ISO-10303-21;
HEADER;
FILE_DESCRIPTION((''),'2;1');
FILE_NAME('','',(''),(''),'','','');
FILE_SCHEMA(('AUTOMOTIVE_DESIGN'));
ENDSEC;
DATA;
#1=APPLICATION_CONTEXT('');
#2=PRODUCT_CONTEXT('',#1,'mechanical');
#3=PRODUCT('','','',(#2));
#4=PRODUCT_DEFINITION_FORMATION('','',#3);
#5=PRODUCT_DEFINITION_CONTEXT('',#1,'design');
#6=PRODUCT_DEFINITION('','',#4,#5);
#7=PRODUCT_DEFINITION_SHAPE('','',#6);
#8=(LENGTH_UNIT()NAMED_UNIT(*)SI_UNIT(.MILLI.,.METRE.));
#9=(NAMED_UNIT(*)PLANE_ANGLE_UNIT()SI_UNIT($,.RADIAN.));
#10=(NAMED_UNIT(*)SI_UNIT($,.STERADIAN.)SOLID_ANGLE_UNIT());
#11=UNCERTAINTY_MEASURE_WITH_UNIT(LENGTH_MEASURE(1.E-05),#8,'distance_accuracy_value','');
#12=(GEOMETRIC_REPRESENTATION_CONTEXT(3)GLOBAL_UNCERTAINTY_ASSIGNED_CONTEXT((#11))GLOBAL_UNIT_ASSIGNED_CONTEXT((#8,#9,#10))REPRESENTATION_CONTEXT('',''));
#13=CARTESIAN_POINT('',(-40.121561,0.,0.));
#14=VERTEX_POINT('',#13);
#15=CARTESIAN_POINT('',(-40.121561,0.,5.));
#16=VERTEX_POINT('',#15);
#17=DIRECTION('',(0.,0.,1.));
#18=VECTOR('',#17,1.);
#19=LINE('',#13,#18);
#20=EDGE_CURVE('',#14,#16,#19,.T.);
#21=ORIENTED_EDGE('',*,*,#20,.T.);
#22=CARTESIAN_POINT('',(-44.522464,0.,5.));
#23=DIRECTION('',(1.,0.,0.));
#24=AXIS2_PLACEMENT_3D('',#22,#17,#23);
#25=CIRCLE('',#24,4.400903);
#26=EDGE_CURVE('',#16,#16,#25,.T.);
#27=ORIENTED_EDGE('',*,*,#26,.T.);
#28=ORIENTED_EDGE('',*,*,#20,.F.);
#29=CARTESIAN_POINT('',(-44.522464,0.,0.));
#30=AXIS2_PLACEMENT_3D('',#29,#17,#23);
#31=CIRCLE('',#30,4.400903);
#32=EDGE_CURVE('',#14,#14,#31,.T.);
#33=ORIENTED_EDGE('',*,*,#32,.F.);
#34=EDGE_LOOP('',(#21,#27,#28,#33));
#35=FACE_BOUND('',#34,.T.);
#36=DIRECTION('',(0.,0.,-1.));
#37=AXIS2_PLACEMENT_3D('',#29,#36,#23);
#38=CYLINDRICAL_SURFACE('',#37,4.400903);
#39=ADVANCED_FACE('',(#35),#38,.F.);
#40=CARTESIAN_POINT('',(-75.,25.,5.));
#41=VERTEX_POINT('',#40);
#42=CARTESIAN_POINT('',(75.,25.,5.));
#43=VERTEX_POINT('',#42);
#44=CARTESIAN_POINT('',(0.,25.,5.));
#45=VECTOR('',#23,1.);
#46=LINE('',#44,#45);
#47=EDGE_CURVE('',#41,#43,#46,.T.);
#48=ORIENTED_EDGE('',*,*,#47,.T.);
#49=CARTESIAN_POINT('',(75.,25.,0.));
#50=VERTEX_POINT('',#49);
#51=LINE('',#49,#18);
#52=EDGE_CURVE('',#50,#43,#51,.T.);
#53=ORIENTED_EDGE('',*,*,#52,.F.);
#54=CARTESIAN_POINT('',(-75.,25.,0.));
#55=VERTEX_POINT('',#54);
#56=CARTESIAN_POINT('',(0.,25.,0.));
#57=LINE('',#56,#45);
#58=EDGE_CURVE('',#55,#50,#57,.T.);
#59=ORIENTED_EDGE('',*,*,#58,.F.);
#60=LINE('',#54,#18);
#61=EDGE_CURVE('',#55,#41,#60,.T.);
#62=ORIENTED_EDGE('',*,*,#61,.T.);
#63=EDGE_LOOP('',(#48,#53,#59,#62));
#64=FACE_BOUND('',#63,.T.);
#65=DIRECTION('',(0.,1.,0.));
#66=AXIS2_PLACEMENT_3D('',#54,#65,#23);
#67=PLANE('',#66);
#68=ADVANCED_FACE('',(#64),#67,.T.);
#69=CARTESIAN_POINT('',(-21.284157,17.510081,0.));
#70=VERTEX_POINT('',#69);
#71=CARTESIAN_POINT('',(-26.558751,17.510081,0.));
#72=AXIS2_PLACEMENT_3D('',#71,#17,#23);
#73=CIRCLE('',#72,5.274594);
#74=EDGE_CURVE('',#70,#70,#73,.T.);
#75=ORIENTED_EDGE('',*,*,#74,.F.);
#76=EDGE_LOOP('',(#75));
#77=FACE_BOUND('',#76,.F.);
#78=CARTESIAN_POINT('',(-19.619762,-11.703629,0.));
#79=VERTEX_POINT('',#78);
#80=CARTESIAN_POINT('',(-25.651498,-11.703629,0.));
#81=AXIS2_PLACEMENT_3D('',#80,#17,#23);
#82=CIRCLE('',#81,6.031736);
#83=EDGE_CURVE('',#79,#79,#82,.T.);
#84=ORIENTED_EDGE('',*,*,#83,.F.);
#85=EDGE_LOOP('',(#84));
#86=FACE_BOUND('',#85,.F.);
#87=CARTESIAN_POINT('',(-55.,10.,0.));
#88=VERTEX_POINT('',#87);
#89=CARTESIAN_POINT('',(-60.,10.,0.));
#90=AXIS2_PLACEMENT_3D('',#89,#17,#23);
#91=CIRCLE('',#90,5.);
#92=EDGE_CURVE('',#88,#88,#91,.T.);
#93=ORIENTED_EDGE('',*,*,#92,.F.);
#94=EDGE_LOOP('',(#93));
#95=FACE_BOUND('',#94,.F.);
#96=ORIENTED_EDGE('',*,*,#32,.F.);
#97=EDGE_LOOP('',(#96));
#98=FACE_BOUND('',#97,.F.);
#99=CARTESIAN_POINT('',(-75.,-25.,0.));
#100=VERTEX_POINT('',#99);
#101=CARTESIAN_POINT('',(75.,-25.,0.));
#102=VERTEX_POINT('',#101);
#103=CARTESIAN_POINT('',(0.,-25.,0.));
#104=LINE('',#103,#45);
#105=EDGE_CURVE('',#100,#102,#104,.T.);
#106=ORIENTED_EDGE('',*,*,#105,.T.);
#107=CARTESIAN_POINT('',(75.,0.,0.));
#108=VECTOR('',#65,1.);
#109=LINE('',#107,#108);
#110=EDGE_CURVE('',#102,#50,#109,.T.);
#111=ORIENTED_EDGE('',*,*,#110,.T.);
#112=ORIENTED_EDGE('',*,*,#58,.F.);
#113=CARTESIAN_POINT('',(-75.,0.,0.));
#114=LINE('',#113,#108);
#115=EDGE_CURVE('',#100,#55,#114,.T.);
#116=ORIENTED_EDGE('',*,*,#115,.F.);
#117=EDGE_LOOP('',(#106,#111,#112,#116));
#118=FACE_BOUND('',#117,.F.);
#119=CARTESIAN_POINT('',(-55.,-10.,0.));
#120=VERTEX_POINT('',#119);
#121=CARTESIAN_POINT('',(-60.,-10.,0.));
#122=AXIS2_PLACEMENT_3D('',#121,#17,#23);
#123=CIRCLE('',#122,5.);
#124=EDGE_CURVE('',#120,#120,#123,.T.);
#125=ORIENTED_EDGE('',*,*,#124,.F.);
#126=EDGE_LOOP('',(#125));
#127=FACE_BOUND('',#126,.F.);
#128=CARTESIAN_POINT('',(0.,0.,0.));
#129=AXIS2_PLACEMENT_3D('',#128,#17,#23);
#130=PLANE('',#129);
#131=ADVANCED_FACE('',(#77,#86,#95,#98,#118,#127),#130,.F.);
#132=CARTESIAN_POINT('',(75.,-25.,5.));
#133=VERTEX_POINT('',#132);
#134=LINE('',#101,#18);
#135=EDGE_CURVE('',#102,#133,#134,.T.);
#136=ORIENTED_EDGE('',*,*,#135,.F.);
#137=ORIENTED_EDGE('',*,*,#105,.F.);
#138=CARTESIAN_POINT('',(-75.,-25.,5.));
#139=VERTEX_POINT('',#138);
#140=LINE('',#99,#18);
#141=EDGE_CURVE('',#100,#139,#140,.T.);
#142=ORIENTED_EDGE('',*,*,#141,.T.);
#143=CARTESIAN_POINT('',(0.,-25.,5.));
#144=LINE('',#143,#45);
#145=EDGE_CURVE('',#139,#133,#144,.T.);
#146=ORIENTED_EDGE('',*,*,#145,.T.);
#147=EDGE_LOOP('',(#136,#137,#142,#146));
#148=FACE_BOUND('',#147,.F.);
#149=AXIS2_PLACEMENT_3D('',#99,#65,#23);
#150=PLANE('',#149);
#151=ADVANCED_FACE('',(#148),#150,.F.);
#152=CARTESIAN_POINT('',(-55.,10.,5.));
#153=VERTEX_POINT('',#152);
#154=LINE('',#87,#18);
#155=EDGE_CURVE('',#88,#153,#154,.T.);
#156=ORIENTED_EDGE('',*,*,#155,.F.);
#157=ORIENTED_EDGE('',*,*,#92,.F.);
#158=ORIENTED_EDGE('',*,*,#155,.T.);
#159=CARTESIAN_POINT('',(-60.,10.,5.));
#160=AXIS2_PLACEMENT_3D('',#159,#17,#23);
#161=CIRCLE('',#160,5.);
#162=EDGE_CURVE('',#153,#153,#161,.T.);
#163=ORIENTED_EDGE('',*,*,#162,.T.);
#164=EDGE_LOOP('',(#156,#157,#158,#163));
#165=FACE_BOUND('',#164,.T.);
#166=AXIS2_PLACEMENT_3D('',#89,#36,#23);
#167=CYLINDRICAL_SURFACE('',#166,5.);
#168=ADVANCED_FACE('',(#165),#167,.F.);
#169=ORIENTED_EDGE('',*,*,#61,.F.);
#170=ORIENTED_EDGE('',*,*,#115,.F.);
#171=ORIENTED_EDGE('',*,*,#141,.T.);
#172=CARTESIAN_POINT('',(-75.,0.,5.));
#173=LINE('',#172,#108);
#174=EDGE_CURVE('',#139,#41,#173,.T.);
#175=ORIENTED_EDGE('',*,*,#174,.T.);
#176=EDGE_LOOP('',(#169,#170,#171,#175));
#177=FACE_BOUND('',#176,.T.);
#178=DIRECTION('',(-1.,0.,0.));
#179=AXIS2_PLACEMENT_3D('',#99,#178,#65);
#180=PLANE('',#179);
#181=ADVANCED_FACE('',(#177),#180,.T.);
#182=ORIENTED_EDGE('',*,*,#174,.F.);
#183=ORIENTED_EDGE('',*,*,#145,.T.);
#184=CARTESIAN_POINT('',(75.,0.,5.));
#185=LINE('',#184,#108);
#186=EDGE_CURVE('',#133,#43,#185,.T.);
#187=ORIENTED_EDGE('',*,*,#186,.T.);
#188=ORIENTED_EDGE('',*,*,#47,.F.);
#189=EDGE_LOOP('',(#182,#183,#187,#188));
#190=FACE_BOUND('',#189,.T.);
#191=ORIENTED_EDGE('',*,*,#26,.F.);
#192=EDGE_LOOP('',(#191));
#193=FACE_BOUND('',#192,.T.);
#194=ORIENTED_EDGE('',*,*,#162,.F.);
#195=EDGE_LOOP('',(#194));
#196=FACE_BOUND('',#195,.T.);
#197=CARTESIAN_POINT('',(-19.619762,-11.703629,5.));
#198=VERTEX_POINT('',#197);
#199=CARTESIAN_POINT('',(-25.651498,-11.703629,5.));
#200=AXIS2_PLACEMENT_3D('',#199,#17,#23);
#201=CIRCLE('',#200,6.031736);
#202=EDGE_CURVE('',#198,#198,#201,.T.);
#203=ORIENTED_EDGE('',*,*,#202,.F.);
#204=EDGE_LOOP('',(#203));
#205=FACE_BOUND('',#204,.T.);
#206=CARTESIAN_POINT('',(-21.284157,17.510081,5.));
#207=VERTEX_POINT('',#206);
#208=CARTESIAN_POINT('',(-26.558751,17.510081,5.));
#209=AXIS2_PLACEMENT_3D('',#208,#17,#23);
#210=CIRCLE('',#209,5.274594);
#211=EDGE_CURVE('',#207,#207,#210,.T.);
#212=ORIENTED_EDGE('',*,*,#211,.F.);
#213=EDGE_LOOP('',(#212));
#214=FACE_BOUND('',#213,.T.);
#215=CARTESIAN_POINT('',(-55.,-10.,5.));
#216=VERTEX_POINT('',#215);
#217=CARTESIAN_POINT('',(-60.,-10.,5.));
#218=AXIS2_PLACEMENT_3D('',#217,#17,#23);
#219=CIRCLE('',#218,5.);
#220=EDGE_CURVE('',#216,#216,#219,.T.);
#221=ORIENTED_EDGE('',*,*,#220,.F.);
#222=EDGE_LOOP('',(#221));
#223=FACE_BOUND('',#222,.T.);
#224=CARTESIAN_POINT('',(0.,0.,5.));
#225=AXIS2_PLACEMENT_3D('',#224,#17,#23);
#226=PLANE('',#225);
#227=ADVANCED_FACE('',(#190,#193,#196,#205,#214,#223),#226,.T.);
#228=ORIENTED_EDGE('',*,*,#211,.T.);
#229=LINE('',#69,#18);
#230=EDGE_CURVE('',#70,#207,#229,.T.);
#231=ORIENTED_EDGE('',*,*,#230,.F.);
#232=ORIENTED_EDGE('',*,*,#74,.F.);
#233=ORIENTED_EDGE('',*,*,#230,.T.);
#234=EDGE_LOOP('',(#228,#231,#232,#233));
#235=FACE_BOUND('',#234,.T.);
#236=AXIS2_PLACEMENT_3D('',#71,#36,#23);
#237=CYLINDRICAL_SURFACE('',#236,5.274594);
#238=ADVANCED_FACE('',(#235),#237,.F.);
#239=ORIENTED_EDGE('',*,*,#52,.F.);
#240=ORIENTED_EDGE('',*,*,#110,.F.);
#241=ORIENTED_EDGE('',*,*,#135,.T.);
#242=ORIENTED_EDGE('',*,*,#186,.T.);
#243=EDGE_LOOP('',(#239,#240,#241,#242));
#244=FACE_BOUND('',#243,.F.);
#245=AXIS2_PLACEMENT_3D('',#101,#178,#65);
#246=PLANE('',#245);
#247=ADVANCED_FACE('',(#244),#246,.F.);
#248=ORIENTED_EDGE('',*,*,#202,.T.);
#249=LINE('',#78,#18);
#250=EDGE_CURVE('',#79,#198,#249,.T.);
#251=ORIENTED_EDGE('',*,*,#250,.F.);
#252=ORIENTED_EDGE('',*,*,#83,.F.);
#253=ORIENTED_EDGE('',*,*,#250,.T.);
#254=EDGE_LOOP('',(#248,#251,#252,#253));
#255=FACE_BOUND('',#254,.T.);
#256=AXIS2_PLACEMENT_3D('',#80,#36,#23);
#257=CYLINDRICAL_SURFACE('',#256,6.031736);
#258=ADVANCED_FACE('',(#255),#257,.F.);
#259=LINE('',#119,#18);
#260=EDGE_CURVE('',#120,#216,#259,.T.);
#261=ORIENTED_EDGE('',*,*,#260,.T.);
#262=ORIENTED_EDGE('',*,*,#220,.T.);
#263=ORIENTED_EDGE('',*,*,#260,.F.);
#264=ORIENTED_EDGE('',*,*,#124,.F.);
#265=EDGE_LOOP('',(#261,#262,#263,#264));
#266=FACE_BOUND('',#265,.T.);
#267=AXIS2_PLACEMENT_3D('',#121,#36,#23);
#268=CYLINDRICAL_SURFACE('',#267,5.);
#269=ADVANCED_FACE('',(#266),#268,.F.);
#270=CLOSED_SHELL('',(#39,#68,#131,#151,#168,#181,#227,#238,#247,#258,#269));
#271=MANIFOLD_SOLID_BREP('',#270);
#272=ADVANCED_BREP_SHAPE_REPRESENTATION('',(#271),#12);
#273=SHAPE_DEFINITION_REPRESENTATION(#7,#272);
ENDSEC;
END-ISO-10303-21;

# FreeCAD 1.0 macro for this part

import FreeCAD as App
import Part
import Sketcher


def add_polygon(sketch, points):
    """Adds a closed chain of lines whose ends are joined by coincident constraints."""
    first, n = sketch.GeometryCount, len(points)
    for a, b in zip(points, points[1:] + points[:1]):
        sketch.addGeometry(Part.LineSegment(App.Vector(*a, 0), App.Vector(*b, 0)), False)
    for i in range(n):
        sketch.addConstraint(Sketcher.Constraint("Coincident", first + i, 2, first + (i + 1) % n, 1))

doc = App.newDocument("Part")
body = doc.addObject("PartDesign::Body", "Body")

# Sketch on XY plane
sketch1 = body.newObject("Sketcher::SketchObject", "Sketch")
sketch1.AttachmentSupport = (doc.getObject("XY_Plane"), [""])
sketch1.MapMode = "FlatFace"
add_polygon(sketch1, [(-75, 25), (-75, -25), (75, -25), (75, 25)])  # lines 0-3
sketch1.addGeometry(Part.Circle(App.Vector(-60, -10, 0), App.Vector(0, 0, 1), 5), False)  # 4
sketch1.addGeometry(Part.Circle(App.Vector(-44.5, 0, 0), App.Vector(0, 0, 1), 4.4), False)  # 5
sketch1.addGeometry(Part.Circle(App.Vector(-25.7, -11.7, 0), App.Vector(0, 0, 1), 6), False)  # 6
sketch1.addGeometry(Part.Circle(App.Vector(-60, 10, 0), App.Vector(0, 0, 1), 5), False)  # 7
sketch1.addGeometry(Part.Circle(App.Vector(-26.6, 17.5, 0), App.Vector(0, 0, 1), 5.3), False)  # 8
sketch1.addConstraint([
    Sketcher.Constraint("Vertical", 0),
    Sketcher.Constraint("Horizontal", 1),
    Sketcher.Constraint("Vertical", 2),
    Sketcher.Constraint("Horizontal", 3),
    Sketcher.Constraint("Equal", 4, 7),
    Sketcher.Constraint("Symmetric", 0, 2, 2, 2, -1, 1),
    Sketcher.Constraint("Symmetric", 4, 3, 7, 3, -1),
    Sketcher.Constraint("PointOnObject", 5, 3, -1),
    Sketcher.Constraint("Diameter", 4, 10.0),
    Sketcher.Constraint("DistanceX", 1, 1, 1, 2, 150.0),
    Sketcher.Constraint("DistanceY", 0, 2, 0, 1, 50.0),
    Sketcher.Constraint("DistanceX", 4, 3, -1, 1, 60.0),
    Sketcher.Constraint("DistanceY", 4, 3, -1, 1, 10.0),
    Sketcher.Constraint("Diameter", 5, 8.801806),
    Sketcher.Constraint("Diameter", 6, 12.063472),
    Sketcher.Constraint("Diameter", 8, 10.549188),
    Sketcher.Constraint("DistanceX", 6, 3, -1, 1, 25.651498),
    Sketcher.Constraint("DistanceY", 6, 3, -1, 1, 11.703629),
    Sketcher.Constraint("DistanceX", 8, 3, -1, 1, 26.558751),
    Sketcher.Constraint("DistanceY", -1, 1, 8, 3, 17.510081),
    Sketcher.Constraint("DistanceX", 5, 3, -1, 1, 44.522464),
])
pad1 = body.newObject("PartDesign::Pad", "Pad")
pad1.Profile = sketch1
pad1.Length = 5

doc.recompute()
